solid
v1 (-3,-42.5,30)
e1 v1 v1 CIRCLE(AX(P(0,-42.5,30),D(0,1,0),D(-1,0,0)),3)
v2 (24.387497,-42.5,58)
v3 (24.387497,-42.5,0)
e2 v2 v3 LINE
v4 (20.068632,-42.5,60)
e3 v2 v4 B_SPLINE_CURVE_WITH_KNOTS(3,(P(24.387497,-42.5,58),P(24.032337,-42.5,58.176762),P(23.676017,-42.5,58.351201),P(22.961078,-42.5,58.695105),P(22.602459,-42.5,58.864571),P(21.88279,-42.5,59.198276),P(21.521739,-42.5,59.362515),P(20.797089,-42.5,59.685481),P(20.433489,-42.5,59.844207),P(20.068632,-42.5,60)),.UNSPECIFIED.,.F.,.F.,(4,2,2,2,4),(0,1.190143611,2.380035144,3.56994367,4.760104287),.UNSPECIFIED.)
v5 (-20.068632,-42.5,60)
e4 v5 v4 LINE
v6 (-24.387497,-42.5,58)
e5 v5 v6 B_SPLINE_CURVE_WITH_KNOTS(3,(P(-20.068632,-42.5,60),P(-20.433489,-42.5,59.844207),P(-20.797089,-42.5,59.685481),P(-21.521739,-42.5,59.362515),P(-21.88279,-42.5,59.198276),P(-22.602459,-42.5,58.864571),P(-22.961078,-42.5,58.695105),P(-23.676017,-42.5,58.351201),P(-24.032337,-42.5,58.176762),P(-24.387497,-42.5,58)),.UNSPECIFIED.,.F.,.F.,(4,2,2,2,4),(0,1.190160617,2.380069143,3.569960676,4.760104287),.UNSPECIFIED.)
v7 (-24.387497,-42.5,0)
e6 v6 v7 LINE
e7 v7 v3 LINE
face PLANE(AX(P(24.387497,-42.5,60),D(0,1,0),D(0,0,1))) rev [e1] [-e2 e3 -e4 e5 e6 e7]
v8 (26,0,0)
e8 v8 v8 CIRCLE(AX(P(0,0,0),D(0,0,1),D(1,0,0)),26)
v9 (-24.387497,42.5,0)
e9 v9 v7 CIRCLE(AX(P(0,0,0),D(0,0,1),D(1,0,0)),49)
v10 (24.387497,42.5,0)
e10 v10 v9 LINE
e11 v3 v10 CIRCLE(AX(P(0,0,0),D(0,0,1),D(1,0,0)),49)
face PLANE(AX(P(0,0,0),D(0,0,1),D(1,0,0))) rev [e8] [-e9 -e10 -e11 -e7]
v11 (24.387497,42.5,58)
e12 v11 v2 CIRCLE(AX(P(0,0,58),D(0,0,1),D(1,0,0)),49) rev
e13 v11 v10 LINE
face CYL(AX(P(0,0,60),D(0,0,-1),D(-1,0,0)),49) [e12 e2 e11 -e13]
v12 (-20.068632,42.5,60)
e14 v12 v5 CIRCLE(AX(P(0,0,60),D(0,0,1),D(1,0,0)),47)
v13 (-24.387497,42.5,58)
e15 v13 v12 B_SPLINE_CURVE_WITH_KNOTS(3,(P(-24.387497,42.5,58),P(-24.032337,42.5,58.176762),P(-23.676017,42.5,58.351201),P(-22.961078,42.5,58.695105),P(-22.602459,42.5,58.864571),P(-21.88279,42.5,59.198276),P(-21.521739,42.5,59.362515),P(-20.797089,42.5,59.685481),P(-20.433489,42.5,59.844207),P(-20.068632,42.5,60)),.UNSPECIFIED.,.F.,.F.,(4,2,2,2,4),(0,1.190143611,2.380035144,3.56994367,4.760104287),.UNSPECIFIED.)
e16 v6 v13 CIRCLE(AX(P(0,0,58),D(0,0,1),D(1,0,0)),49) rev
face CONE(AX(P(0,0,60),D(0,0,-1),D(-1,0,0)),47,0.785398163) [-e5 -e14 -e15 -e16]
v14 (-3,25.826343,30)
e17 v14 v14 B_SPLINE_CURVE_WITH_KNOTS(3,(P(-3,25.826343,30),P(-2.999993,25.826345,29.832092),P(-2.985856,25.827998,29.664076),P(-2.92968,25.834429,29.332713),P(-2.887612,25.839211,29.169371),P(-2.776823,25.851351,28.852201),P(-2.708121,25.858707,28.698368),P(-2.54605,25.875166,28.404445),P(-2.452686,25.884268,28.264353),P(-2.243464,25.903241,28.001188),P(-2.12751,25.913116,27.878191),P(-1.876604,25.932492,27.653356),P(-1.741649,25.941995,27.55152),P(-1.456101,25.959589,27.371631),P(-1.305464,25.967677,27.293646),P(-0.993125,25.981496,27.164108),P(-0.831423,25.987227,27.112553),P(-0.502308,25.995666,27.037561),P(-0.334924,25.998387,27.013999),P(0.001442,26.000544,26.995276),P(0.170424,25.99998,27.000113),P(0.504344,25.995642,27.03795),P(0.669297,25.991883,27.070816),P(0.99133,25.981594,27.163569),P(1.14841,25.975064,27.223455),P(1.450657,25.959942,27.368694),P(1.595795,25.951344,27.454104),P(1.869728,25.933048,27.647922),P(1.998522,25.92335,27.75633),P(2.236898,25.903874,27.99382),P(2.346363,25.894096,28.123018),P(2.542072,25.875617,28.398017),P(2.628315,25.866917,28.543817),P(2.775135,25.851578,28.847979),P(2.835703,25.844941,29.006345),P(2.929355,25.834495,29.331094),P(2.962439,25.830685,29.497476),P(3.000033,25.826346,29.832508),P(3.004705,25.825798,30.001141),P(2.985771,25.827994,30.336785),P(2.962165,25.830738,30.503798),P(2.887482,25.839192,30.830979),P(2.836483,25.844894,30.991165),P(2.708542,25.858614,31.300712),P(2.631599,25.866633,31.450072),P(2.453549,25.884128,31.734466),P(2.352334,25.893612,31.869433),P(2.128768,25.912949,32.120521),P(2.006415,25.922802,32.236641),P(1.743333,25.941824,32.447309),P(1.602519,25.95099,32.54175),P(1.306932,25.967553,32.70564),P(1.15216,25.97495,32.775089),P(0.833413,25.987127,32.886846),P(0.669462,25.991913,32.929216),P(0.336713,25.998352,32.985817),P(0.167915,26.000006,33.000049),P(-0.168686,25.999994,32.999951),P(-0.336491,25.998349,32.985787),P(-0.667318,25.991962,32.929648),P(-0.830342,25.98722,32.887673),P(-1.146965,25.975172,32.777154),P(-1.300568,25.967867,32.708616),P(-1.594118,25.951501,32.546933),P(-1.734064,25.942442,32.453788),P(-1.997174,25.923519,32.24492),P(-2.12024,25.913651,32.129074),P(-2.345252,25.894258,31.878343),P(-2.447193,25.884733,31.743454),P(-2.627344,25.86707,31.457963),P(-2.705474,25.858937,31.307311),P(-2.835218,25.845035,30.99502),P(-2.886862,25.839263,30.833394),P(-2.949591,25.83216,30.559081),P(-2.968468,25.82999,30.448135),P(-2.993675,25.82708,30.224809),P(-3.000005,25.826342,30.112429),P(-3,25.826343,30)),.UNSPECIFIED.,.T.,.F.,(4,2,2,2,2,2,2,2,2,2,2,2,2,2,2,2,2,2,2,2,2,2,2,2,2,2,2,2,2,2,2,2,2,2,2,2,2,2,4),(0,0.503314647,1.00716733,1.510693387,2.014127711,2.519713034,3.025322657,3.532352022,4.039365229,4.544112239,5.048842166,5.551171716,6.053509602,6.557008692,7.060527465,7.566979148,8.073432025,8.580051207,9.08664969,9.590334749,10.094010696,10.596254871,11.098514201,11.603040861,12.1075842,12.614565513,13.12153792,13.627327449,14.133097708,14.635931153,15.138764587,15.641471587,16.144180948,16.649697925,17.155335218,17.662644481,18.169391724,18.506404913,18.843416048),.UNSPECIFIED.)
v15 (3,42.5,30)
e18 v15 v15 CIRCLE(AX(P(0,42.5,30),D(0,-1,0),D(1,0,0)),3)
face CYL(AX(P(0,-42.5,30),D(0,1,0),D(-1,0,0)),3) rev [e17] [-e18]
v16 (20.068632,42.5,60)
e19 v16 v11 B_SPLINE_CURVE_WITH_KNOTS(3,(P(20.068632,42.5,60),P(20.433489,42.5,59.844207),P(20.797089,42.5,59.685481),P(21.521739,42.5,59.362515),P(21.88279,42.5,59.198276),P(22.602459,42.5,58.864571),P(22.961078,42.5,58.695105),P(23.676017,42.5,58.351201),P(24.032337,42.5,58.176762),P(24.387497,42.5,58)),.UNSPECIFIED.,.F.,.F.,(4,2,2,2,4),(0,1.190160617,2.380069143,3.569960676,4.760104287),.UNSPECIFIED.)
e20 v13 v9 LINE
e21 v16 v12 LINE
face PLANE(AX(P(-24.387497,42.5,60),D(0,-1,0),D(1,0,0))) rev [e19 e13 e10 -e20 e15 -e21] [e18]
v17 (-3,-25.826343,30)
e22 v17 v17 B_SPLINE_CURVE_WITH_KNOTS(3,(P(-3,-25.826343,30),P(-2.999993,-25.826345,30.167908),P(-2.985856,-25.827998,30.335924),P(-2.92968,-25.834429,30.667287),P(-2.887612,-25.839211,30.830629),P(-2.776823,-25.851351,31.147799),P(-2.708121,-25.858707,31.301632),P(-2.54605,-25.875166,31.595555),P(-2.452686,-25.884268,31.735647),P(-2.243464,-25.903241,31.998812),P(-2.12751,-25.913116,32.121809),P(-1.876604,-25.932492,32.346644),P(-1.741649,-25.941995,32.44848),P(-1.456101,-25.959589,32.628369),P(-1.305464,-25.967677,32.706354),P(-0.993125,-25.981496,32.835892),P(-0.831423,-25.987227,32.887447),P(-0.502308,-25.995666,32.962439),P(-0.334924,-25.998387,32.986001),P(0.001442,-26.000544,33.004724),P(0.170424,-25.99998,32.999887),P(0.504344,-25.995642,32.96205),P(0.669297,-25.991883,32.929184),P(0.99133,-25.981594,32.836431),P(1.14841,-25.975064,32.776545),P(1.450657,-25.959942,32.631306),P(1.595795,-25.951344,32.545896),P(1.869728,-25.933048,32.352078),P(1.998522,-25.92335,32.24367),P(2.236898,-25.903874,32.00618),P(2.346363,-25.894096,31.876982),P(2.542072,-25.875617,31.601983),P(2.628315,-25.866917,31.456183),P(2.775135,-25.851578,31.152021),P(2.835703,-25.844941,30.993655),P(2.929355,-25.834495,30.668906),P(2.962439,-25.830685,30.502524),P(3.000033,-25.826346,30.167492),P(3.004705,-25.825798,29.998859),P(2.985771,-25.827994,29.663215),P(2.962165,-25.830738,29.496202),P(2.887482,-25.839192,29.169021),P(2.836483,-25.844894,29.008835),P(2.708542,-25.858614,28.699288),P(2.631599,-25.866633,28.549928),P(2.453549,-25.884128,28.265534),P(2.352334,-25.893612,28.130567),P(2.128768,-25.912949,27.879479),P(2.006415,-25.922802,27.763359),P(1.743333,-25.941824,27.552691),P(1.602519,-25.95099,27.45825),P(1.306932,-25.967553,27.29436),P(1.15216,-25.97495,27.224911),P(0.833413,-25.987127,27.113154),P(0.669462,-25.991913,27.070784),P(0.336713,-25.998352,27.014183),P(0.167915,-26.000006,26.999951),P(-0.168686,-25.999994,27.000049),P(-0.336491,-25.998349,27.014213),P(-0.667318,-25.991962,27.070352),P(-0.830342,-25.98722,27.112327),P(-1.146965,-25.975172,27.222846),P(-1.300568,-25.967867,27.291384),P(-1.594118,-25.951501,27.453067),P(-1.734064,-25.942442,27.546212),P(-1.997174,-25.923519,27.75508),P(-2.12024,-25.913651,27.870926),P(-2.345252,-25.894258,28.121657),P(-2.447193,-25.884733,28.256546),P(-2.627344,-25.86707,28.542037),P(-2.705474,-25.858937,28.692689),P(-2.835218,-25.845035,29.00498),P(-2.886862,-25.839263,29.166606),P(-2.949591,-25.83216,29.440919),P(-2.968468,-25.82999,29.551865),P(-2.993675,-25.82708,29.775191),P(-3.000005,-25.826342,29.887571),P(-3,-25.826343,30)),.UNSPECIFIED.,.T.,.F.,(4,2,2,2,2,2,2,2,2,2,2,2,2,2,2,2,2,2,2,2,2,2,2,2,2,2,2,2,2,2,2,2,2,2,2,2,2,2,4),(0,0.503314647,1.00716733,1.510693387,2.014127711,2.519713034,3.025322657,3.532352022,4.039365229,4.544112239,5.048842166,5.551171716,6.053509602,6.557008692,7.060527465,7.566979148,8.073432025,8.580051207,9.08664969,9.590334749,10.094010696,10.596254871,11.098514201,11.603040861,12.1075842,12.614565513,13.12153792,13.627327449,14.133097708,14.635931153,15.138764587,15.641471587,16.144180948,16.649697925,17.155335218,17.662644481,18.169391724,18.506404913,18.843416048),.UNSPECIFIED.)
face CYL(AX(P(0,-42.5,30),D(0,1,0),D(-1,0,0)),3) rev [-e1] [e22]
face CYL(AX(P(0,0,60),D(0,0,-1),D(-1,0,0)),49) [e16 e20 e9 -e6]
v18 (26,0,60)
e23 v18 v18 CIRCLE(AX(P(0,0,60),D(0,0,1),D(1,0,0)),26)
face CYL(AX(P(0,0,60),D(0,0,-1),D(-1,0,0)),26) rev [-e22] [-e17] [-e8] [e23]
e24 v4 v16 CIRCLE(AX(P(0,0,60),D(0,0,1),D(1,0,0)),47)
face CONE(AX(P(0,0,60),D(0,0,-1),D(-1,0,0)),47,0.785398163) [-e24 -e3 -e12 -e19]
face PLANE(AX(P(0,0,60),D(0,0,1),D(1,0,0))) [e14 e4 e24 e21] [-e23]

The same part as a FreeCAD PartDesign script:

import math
import FreeCAD as App
import Part
import Sketcher


def edges_at(feature, points):
    """Names of the edges that pass closest to the given points."""
    edges = feature.Shape.Edges
    near = lambda p: min(range(len(edges)), key=lambda i: edges[i].distToShape(Part.Vertex(*p))[0])
    return sorted({f"Edge{near(p) + 1}" for p in points})

doc = App.newDocument("Part")
params = doc.addObject("Spreadsheet::Sheet", "Params")
for row, (alias, value) in enumerate([
    ("sketch1_diameter", "52 mm"),
    ("sketch1_radius", "49 mm"),
    ("pad1_length", "60 mm"),
    ("chamfer_size", "2 mm"),
    ("sketch2_diameter", "6 mm"),
], start=1):
    params.set(f"A{row}", alias)
    params.set(f"B{row}", "=" + value)
    params.setAlias(f"B{row}", alias)

body = doc.addObject("PartDesign::Body", "Body")

# Sketch on XY plane
sketch1 = body.newObject("Sketcher::SketchObject", "Sketch")
sketch1.AttachmentSupport = (doc.getObject("XY_Plane"), [""])
sketch1.MapMode = "FlatFace"
sketch1.addGeometry([
    Part.LineSegment(App.Vector(24, 42, 0), App.Vector(-24, 42, 0)),  # 0
    Part.ArcOfCircle(Part.Circle(App.Vector(0, 0, 0), App.Vector(0, 0, 1), 49), math.radians(120), math.radians(240)),  # 1
    Part.LineSegment(App.Vector(-24, -42, 0), App.Vector(24, -42, 0)),  # 2
    Part.ArcOfCircle(Part.Circle(App.Vector(0, 0, 0), App.Vector(0, 0, 1), 49), math.radians(-60), math.radians(60)),  # 3
    Part.Circle(App.Vector(0, 0, 0), App.Vector(0, 0, 1), 26),  # 4
], False)
sketch1.addConstraint([
    Sketcher.Constraint("Coincident", 0, 2, 1, 1),
    Sketcher.Constraint("Coincident", 1, 2, 2, 1),
    Sketcher.Constraint("Coincident", 2, 2, 3, 1),
    Sketcher.Constraint("Coincident", 3, 2, 0, 1),
    Sketcher.Constraint("Horizontal", 0),
    Sketcher.Constraint("Horizontal", 2),
    Sketcher.Constraint("Coincident", 1, 3, -1, 1),
    Sketcher.Constraint("Coincident", 3, 3, -1, 1),
    Sketcher.Constraint("Coincident", 4, 3, -1, 1),
    Sketcher.Constraint("Equal", 1, 3),
    Sketcher.Constraint("Vertical", 0, 2, 1, 2),
    Sketcher.Constraint("Diameter", 4, 52.0),
    Sketcher.Constraint("Radius", 1, 49.0),
    Sketcher.Constraint("DistanceY", 1, 2, 0, 2, 85.0),
])
sketch1.setExpression("Constraints[11]", "Params.sketch1_diameter")
sketch1.setExpression("Constraints[12]", "Params.sketch1_radius")
pad1 = body.newObject("PartDesign::Pad", "Pad")
pad1.Profile = sketch1
pad1.setExpression("Length", "Params.pad1_length")
doc.recompute()

chamfer = body.newObject("PartDesign::Chamfer", "Chamfer")
chamfer.Base = (pad1, edges_at(pad1, [(49, 0, 60), (-49, 0, 60)]))
chamfer.setExpression("Size", "Params.chamfer_size")

# Sketch on XZ plane
sketch2 = body.newObject("Sketcher::SketchObject", "Sketch001")
sketch2.AttachmentSupport = (doc.getObject("XZ_Plane"), [""])
sketch2.MapMode = "FlatFace"
sketch2.AttachmentOffset = App.Placement(App.Vector(0, 0, -42.5), App.Rotation())
sketch2.addGeometry(Part.Circle(App.Vector(0, 30, 0), App.Vector(0, 0, 1), 3), False)
sketch2.addConstraint([
    Sketcher.Constraint("PointOnObject", 0, 3, -2),
    Sketcher.Constraint("Diameter", 0, 6.0),
    Sketcher.Constraint("DistanceY", -1, 1, 0, 3, 30.0),
])
sketch2.setExpression("Constraints[1]", "Params.sketch2_diameter")
pocket1 = body.newObject("PartDesign::Pocket", "Pocket")
pocket1.Profile = sketch2
pocket1.Type = "ThroughAll"
pocket1.Midplane = True

doc.recompute()
